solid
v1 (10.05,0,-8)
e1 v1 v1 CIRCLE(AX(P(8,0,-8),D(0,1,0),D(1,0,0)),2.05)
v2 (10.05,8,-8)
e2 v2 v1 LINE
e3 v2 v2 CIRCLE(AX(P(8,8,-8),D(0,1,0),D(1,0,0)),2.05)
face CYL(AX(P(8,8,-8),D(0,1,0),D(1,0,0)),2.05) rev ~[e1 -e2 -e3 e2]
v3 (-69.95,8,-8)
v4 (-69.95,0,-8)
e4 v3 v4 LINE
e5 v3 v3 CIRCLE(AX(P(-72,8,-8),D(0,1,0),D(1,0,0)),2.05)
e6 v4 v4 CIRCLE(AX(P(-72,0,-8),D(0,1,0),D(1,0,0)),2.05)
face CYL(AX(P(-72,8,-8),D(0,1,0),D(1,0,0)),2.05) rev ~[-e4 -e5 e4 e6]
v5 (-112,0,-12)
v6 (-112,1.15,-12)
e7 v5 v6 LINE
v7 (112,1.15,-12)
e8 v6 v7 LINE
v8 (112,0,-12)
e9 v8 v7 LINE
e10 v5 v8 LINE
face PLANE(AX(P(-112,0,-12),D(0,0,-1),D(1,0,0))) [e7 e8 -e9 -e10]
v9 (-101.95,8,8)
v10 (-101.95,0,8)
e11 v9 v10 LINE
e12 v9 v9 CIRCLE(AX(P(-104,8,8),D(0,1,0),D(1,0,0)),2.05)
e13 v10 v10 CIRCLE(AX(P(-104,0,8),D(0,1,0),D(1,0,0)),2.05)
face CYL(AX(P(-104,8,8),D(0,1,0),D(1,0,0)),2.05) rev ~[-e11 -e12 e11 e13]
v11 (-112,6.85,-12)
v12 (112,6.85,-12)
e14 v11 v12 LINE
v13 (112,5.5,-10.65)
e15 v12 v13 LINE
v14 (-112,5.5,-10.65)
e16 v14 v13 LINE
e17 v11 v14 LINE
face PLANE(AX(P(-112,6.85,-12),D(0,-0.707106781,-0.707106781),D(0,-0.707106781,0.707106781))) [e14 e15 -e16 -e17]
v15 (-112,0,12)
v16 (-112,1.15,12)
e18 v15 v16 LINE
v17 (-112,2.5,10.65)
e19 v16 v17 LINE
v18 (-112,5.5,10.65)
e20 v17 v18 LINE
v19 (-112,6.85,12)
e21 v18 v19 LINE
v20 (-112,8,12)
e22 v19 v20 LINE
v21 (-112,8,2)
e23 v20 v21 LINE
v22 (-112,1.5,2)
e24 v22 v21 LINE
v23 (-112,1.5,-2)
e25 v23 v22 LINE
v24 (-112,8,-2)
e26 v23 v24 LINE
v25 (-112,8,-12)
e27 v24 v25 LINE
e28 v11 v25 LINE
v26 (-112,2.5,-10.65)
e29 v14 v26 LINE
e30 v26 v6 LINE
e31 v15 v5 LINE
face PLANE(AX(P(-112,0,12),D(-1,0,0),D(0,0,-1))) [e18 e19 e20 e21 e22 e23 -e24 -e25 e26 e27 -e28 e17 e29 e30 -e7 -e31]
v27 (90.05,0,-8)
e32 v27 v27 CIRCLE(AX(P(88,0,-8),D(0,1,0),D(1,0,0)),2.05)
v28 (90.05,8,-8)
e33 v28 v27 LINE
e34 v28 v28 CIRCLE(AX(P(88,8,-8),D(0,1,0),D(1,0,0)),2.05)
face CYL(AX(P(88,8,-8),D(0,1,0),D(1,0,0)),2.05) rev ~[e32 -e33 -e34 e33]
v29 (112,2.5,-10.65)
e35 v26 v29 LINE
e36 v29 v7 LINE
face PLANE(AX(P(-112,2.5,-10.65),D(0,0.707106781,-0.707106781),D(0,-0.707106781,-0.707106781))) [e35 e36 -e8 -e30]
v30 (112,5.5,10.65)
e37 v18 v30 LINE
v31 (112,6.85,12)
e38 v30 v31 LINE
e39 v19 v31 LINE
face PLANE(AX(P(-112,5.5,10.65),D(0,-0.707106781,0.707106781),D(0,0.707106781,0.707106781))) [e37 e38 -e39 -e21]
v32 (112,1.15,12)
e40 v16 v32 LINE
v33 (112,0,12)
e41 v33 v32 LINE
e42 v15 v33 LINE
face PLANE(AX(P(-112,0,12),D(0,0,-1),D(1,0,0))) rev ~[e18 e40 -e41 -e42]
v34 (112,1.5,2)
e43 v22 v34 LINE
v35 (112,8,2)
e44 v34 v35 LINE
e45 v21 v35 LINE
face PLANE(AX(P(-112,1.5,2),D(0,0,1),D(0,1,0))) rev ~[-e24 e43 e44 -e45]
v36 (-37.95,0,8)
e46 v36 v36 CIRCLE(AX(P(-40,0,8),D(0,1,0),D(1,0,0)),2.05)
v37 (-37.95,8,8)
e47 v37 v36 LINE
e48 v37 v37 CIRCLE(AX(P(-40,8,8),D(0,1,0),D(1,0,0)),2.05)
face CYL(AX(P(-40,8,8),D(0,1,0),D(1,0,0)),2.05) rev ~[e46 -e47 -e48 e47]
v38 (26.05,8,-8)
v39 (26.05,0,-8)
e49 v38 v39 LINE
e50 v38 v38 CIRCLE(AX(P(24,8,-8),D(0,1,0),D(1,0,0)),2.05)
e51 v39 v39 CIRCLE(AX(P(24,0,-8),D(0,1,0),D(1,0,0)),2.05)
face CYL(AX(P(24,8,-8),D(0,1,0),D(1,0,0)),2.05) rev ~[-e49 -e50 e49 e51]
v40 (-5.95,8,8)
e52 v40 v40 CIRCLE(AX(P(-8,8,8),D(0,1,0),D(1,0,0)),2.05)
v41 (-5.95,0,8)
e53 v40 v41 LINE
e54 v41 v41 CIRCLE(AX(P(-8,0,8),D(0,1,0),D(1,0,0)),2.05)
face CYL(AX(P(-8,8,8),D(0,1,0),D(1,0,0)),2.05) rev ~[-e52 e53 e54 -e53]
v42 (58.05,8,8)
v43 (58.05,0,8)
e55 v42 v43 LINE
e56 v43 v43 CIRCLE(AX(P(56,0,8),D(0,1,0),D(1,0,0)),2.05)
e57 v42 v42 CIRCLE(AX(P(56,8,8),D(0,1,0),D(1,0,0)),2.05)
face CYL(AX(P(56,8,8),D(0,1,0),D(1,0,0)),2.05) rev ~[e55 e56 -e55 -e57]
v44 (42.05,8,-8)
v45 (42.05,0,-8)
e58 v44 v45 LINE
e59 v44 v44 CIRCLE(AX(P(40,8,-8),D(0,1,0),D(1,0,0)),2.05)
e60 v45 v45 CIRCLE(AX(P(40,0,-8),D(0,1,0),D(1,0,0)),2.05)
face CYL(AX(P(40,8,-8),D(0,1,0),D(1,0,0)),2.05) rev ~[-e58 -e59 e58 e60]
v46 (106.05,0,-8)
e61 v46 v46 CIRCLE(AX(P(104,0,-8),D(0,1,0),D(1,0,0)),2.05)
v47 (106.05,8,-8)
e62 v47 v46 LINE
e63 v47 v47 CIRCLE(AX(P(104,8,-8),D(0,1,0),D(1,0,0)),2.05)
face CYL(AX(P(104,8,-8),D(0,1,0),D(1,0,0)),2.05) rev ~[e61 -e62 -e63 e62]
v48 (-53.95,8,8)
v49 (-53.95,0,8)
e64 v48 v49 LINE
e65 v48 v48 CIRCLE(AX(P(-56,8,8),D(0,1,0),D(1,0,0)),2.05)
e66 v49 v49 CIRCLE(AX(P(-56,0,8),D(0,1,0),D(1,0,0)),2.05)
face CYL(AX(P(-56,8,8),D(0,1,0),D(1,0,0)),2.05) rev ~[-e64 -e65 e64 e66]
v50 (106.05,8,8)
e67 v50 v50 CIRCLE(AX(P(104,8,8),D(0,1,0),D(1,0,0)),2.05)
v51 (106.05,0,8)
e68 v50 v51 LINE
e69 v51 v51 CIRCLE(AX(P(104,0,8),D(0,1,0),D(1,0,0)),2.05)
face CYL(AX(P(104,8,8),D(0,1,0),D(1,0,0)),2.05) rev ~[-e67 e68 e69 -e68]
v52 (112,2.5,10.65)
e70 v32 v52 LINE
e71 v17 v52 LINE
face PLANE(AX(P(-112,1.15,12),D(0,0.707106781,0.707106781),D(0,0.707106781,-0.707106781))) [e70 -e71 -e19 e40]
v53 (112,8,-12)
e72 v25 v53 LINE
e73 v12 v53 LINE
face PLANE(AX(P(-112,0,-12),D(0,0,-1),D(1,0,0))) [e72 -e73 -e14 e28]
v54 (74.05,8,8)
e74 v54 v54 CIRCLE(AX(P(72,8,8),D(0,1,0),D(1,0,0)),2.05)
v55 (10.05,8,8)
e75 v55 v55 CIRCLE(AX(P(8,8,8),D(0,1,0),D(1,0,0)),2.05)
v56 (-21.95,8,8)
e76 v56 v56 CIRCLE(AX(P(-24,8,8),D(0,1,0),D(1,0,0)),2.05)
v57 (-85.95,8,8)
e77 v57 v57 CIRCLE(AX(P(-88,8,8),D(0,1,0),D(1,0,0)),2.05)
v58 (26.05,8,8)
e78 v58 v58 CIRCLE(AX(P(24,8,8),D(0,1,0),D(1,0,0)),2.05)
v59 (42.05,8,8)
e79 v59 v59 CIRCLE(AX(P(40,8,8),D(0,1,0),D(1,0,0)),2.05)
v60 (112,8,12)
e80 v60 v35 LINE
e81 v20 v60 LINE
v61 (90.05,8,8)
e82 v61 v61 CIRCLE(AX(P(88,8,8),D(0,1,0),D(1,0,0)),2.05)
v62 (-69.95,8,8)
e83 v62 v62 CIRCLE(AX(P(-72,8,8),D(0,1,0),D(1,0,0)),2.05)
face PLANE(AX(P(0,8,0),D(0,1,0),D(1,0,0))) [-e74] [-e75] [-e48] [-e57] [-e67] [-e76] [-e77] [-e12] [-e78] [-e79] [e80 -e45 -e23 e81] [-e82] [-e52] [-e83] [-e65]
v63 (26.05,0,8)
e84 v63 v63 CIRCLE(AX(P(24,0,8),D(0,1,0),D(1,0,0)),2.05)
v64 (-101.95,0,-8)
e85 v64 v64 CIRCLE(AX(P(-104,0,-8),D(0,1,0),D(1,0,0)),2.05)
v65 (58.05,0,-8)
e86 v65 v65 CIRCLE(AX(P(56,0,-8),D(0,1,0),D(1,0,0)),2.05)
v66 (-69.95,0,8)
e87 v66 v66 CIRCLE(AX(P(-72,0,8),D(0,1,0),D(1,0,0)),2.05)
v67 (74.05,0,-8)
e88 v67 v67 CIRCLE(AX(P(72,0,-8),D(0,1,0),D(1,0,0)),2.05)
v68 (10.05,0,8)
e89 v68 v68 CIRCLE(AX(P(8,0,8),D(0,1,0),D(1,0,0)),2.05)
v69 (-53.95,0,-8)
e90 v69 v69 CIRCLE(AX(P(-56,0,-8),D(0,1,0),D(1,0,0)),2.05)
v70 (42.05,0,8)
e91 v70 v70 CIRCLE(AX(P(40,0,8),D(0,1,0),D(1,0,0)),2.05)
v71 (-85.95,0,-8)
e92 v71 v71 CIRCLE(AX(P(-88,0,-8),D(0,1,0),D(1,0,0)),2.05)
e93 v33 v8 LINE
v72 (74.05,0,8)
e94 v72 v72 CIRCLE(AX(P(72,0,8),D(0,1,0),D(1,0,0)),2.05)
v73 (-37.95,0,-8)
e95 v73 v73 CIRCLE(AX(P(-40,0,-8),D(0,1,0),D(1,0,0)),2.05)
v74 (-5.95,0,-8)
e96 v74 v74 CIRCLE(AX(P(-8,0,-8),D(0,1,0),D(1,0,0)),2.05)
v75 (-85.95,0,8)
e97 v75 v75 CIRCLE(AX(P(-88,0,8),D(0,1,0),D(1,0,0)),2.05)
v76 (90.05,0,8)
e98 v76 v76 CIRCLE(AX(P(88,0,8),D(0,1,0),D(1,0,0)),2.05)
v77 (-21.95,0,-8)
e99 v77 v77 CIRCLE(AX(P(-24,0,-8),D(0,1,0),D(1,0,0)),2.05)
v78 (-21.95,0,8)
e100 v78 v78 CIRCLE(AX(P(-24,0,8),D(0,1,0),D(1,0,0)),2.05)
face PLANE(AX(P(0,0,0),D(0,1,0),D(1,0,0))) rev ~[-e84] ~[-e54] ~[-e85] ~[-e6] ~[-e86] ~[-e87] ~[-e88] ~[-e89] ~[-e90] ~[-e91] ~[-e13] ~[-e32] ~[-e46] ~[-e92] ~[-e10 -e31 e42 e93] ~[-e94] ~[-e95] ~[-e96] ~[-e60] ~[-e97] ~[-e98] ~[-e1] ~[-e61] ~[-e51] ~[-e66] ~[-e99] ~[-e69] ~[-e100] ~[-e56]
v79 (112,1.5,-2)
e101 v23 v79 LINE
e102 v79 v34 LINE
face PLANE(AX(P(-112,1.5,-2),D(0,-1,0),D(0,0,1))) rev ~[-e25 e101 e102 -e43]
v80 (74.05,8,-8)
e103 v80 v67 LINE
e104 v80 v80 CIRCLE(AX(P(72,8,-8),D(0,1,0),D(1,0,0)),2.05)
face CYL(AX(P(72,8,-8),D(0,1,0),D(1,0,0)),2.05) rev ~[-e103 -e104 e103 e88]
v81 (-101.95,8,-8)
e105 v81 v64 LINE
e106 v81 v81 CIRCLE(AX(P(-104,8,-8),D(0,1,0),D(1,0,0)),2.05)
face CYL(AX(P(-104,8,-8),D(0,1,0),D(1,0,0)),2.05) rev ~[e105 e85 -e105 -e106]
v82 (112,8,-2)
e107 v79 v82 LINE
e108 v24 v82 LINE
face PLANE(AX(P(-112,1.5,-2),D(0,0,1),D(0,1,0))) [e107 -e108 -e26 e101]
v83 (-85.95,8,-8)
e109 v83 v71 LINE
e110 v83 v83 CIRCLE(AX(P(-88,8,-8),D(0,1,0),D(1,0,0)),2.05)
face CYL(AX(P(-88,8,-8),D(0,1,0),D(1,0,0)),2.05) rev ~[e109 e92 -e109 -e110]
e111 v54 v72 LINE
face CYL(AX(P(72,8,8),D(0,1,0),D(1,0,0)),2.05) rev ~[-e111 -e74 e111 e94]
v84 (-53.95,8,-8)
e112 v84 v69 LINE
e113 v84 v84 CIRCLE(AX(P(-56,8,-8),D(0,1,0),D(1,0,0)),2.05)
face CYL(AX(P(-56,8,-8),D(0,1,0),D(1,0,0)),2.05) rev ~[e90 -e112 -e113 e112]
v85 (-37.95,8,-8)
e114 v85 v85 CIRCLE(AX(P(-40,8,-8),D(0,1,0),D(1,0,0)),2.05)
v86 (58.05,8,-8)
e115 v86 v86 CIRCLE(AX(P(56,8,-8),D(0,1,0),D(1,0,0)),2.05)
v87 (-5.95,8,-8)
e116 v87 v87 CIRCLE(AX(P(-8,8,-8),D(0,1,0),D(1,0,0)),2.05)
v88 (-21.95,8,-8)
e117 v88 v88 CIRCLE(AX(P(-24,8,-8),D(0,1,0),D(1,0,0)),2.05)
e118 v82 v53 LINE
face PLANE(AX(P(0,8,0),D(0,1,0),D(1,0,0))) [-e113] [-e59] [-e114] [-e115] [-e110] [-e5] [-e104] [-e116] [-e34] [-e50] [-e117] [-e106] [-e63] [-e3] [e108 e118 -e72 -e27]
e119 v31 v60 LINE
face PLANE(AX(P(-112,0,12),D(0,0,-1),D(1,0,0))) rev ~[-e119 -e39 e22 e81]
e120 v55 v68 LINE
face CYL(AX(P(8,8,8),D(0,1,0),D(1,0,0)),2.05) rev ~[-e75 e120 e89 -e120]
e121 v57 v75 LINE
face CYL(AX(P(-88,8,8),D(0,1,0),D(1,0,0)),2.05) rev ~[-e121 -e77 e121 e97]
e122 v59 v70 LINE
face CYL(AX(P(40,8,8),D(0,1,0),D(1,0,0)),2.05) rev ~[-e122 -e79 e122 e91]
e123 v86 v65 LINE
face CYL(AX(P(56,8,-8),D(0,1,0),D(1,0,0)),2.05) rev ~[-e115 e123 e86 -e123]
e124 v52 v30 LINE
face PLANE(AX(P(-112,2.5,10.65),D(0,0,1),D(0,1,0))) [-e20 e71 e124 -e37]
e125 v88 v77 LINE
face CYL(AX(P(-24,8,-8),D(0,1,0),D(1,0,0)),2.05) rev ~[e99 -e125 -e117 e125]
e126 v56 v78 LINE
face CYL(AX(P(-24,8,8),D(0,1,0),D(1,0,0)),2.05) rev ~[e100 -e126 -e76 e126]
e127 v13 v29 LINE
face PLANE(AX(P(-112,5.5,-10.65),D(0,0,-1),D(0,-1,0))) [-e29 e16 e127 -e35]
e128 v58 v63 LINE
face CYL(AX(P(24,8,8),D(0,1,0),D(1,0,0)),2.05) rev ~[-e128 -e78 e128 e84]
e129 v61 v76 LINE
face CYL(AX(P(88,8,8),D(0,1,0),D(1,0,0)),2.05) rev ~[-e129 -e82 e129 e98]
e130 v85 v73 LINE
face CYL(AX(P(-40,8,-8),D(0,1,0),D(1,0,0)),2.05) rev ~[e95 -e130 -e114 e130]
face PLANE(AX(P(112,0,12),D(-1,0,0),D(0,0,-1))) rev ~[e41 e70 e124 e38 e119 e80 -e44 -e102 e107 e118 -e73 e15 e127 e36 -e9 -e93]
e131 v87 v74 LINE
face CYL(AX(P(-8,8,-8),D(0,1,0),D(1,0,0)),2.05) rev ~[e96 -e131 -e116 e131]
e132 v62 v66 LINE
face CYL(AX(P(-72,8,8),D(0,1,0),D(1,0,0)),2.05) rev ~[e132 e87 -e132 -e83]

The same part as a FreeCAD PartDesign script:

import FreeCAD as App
import Part
import Sketcher

V = App.Vector
Q = App.Units.Quantity

doc = App.newDocument("Part")
params = doc.addObject("Spreadsheet::Sheet", "Params")
for row, (alias, value) in enumerate([
    ("sketch1_width", "224 mm"),
    ("sketch1_height", "24 mm"),
    ("pad1_length", "8 mm"),
    ("sketch2_diameter", "4.1 mm"),
    ("sketch3_width", "3 mm"),
    ("sketch3_height", "4 mm"),
    ("sketch3_width2", "6.5 mm"),
    ("sketch3_width3", "5.7 mm"),
], start=1):
    params.set(f"A{row}", alias)
    params.set(f"B{row}", "=" + value)
    params.setAlias(f"B{row}", alias)

body = doc.addObject("PartDesign::Body", "Body")

sketch1 = body.newObject("Sketcher::SketchObject", "Sketch")
sketch1.AttachmentSupport = (doc.getObject("XZ_Plane"), [""])
sketch1.MapMode = "FlatFace"
sketch1.addGeometry([
    Part.LineSegment(V(-112, -12, 0), V(-112, 12, 0)),
    Part.LineSegment(V(-112, 12, 0), V(112, 12, 0)),
    Part.LineSegment(V(112, 12, 0), V(112, -12, 0)),
    Part.LineSegment(V(112, -12, 0), V(-112, -12, 0)),
], False)
sketch1.addConstraint([
    Sketcher.Constraint("Coincident", 0, 2, 1, 1),
    Sketcher.Constraint("Coincident", 1, 2, 2, 1),
    Sketcher.Constraint("Coincident", 2, 2, 3, 1),
    Sketcher.Constraint("Coincident", 3, 2, 0, 1),
    Sketcher.Constraint("Vertical", 0),
    Sketcher.Constraint("Horizontal", 1),
    Sketcher.Constraint("Vertical", 2),
    Sketcher.Constraint("Horizontal", 3),
    Sketcher.Constraint("Symmetric", 0, 2, 2, 2, -1, 1),
    Sketcher.Constraint("DistanceX", 1, 1, 1, 2, Q("224 mm")),
    Sketcher.Constraint("DistanceY", 0, 1, 0, 2, Q("24 mm")),
])
sketch1.setExpression("Constraints[9]", "Params.sketch1_width")
sketch1.setExpression("Constraints[10]", "Params.sketch1_height")
pad1 = body.newObject("PartDesign::Pad", "Pad")
pad1.Profile = sketch1
pad1.setExpression("Length", "Params.pad1_length")
pad1.Reversed = True

sketch2 = body.newObject("Sketcher::SketchObject", "Sketch001")
sketch2.AttachmentSupport = (doc.getObject("XZ_Plane"), [""])
sketch2.MapMode = "FlatFace"
sketch2.AttachmentOffset = App.Placement(V(0, 0, -8), App.Rotation())
sketch2.addGeometry([
    Part.Circle(V(-104, -8, 0), V(0, 0, 1), 2.05),
    Part.Circle(V(-88, -8, 0), V(0, 0, 1), 2.05),
    Part.Circle(V(-72, -8, 0), V(0, 0, 1), 2.05),
    Part.Circle(V(-56, -8, 0), V(0, 0, 1), 2.05),
    Part.Circle(V(-40, -8, 0), V(0, 0, 1), 2.05),
    Part.Circle(V(-24, -8, 0), V(0, 0, 1), 2.05),
    Part.Circle(V(-8, -8, 0), V(0, 0, 1), 2.05),
    Part.Circle(V(8, -8, 0), V(0, 0, 1), 2.05),
    Part.Circle(V(24, -8, 0), V(0, 0, 1), 2.05),
    Part.Circle(V(40, -8, 0), V(0, 0, 1), 2.05),
    Part.Circle(V(56, -8, 0), V(0, 0, 1), 2.05),
    Part.Circle(V(72, -8, 0), V(0, 0, 1), 2.05),
    Part.Circle(V(88, -8, 0), V(0, 0, 1), 2.05),
    Part.Circle(V(104, -8, 0), V(0, 0, 1), 2.05),
    Part.Circle(V(-88, 8, 0), V(0, 0, 1), 2.05),
    Part.Circle(V(-72, 8, 0), V(0, 0, 1), 2.05),
    Part.Circle(V(-56, 8, 0), V(0, 0, 1), 2.05),
    Part.Circle(V(-40, 8, 0), V(0, 0, 1), 2.05),
    Part.Circle(V(-24, 8, 0), V(0, 0, 1), 2.05),
    Part.Circle(V(-8, 8, 0), V(0, 0, 1), 2.05),
    Part.Circle(V(8, 8, 0), V(0, 0, 1), 2.05),
    Part.Circle(V(24, 8, 0), V(0, 0, 1), 2.05),
    Part.Circle(V(40, 8, 0), V(0, 0, 1), 2.05),
    Part.Circle(V(56, 8, 0), V(0, 0, 1), 2.05),
    Part.Circle(V(72, 8, 0), V(0, 0, 1), 2.05),
    Part.Circle(V(88, 8, 0), V(0, 0, 1), 2.05),
    Part.Circle(V(104, 8, 0), V(0, 0, 1), 2.05),
    Part.Circle(V(-104, 8, 0), V(0, 0, 1), 2.05),
], False)
sketch2.addConstraint([
    Sketcher.Constraint("Equal", 0, 1),
    Sketcher.Constraint("Equal", 1, 2),
    Sketcher.Constraint("Equal", 2, 3),
    Sketcher.Constraint("Equal", 3, 4),
    Sketcher.Constraint("Equal", 4, 5),
    Sketcher.Constraint("Equal", 5, 6),
    Sketcher.Constraint("Equal", 6, 7),
    Sketcher.Constraint("Equal", 7, 8),
    Sketcher.Constraint("Equal", 8, 9),
    Sketcher.Constraint("Equal", 9, 10),
    Sketcher.Constraint("Equal", 10, 11),
    Sketcher.Constraint("Equal", 11, 12),
    Sketcher.Constraint("Equal", 12, 13),
    Sketcher.Constraint("Equal", 13, 14),
    Sketcher.Constraint("Equal", 14, 15),
    Sketcher.Constraint("Equal", 15, 16),
    Sketcher.Constraint("Equal", 16, 17),
    Sketcher.Constraint("Equal", 17, 18),
    Sketcher.Constraint("Equal", 18, 19),
    Sketcher.Constraint("Equal", 19, 20),
    Sketcher.Constraint("Equal", 20, 21),
    Sketcher.Constraint("Equal", 21, 22),
    Sketcher.Constraint("Equal", 22, 23),
    Sketcher.Constraint("Equal", 23, 24),
    Sketcher.Constraint("Equal", 24, 25),
    Sketcher.Constraint("Equal", 25, 26),
    Sketcher.Constraint("Equal", 26, 27),
    Sketcher.Constraint("Symmetric", 12, 3, 14, 3, -1, 1),
    Sketcher.Constraint("Symmetric", 11, 3, 15, 3, -1, 1),
    Sketcher.Constraint("Symmetric", 10, 3, 16, 3, -1, 1),
    Sketcher.Constraint("Symmetric", 9, 3, 17, 3, -1, 1),
    Sketcher.Constraint("Symmetric", 8, 3, 18, 3, -1, 1),
    Sketcher.Constraint("Symmetric", 7, 3, 19, 3, -1, 1),
    Sketcher.Constraint("Symmetric", 6, 3, 20, 3, -1, 1),
    Sketcher.Constraint("Symmetric", 5, 3, 21, 3, -1, 1),
    Sketcher.Constraint("Symmetric", 4, 3, 22, 3, -1, 1),
    Sketcher.Constraint("Symmetric", 3, 3, 23, 3, -1, 1),
    Sketcher.Constraint("Symmetric", 2, 3, 24, 3, -1, 1),
    Sketcher.Constraint("Symmetric", 1, 3, 25, 3, -1, 1),
    Sketcher.Constraint("Symmetric", 0, 3, 26, 3, -1, 1),
    Sketcher.Constraint("Symmetric", 13, 3, 27, 3, -1, 1),
    Sketcher.Constraint("Symmetric", 6, 3, 7, 3, -2),
    Sketcher.Constraint("Symmetric", 5, 3, 8, 3, -2),
    Sketcher.Constraint("Symmetric", 4, 3, 9, 3, -2),
    Sketcher.Constraint("Symmetric", 3, 3, 10, 3, -2),
    Sketcher.Constraint("Symmetric", 2, 3, 11, 3, -2),
    Sketcher.Constraint("Symmetric", 1, 3, 12, 3, -2),
    Sketcher.Constraint("Symmetric", 0, 3, 13, 3, -2),
    Sketcher.Constraint("Horizontal", 0, 3, 1, 3),
    Sketcher.Constraint("Horizontal", 1, 3, 2, 3),
    Sketcher.Constraint("Horizontal", 2, 3, 3, 3),
    Sketcher.Constraint("Horizontal", 3, 3, 4, 3),
    Sketcher.Constraint("Horizontal", 4, 3, 5, 3),
    Sketcher.Constraint("Horizontal", 5, 3, 6, 3),
    Sketcher.Constraint("Diameter", 0, Q("4.1 mm")),
    Sketcher.Constraint("DistanceX", 0, 3, -1, 1, Q("104 mm")),
    Sketcher.Constraint("DistanceY", 0, 3, -1, 1, Q("8 mm")),
    Sketcher.Constraint("DistanceX", 1, 3, -1, 1, Q("88 mm")),
    Sketcher.Constraint("DistanceX", 2, 3, -1, 1, Q("72 mm")),
    Sketcher.Constraint("DistanceX", 3, 3, -1, 1, Q("56 mm")),
    Sketcher.Constraint("DistanceX", 4, 3, -1, 1, Q("40 mm")),
    Sketcher.Constraint("DistanceX", 5, 3, -1, 1, Q("24 mm")),
    Sketcher.Constraint("DistanceX", 6, 3, -1, 1, Q("8 mm")),
])
sketch2.setExpression("Constraints[54]", "Params.sketch2_diameter")
pocket1 = body.newObject("PartDesign::Pocket", "Pocket")
pocket1.Profile = sketch2
pocket1.Type = "ThroughAll"
pocket1.Reversed = True

sketch3 = body.newObject("Sketcher::SketchObject", "Sketch002")
sketch3.AttachmentSupport = (doc.getObject("YZ_Plane"), [""])
sketch3.MapMode = "FlatFace"
sketch3.AttachmentOffset = App.Placement(V(0, 0, -112), App.Rotation())
sketch3.addGeometry([
    Part.LineSegment(V(8, -2, 0), V(1.5, -2, 0)),
    Part.LineSegment(V(1.5, -2, 0), V(1.5, 2, 0)),
    Part.LineSegment(V(1.5, 2, 0), V(8, 2, 0)),
    Part.LineSegment(V(8, 2, 0), V(8, -2, 0)),
    Part.LineSegment(V(5.5, -10.65, 0), V(6.85, -12, 0)),
    Part.LineSegment(V(6.85, -12, 0), V(1.15, -12, 0)),
    Part.LineSegment(V(1.15, -12, 0), V(2.5, -10.65, 0)),
    Part.LineSegment(V(2.5, -10.65, 0), V(5.5, -10.65, 0)),
    Part.LineSegment(V(1.15, 12, 0), V(6.85, 12, 0)),
    Part.LineSegment(V(6.85, 12, 0), V(5.5, 10.65, 0)),
    Part.LineSegment(V(5.5, 10.65, 0), V(2.5, 10.65, 0)),
    Part.LineSegment(V(2.5, 10.65, 0), V(1.15, 12, 0)),
], False)
sketch3.addConstraint([
    Sketcher.Constraint("Coincident", 0, 2, 1, 1),
    Sketcher.Constraint("Coincident", 1, 2, 2, 1),
    Sketcher.Constraint("Coincident", 2, 2, 3, 1),
    Sketcher.Constraint("Coincident", 3, 2, 0, 1),
    Sketcher.Constraint("Coincident", 4, 2, 5, 1),
    Sketcher.Constraint("Coincident", 5, 2, 6, 1),
    Sketcher.Constraint("Coincident", 6, 2, 7, 1),
    Sketcher.Constraint("Coincident", 7, 2, 4, 1),
    Sketcher.Constraint("Coincident", 8, 2, 9, 1),
    Sketcher.Constraint("Coincident", 9, 2, 10, 1),
    Sketcher.Constraint("Coincident", 10, 2, 11, 1),
    Sketcher.Constraint("Coincident", 11, 2, 8, 1),
    Sketcher.Constraint("Horizontal", 0),
    Sketcher.Constraint("Vertical", 1),
    Sketcher.Constraint("Horizontal", 2),
    Sketcher.Constraint("Vertical", 3),
    Sketcher.Constraint("Horizontal", 5),
    Sketcher.Constraint("Horizontal", 7),
    Sketcher.Constraint("Horizontal", 8),
    Sketcher.Constraint("Horizontal", 10),
    Sketcher.Constraint("Symmetric", 4, 2, 8, 2, -1),
    Sketcher.Constraint("Symmetric", 7, 2, 9, 2, -1),
    Sketcher.Constraint("Perpendicular", 4, 6),
    Sketcher.Constraint("Parallel", 6, 9),
    Sketcher.Constraint("Perpendicular", 9, 11),
    Sketcher.Constraint("Vertical", 6, 2, 10, 2),
    Sketcher.Constraint("DistanceX", 7, 1, 7, 2, Q("3 mm")),
    Sketcher.Constraint("DistanceY", 1, 1, 1, 2, Q("4 mm")),
    Sketcher.Constraint("DistanceX", 0, 2, 0, 1, Q("6.5 mm")),
    Sketcher.Constraint("DistanceX", 5, 2, 5, 1, Q("5.7 mm")),
    Sketcher.Constraint("DistanceY", 0, 2, -1, 1, Q("2 mm")),
    Sketcher.Constraint("DistanceX", -1, 1, 2, 2, Q("8 mm")),
    Sketcher.Constraint("DistanceY", 4, 2, -1, 1, Q("12 mm")),
    Sketcher.Constraint("DistanceX", 0, 2, 6, 2, Q("1 mm")),
])
sketch3.setExpression("Constraints[26]", "Params.sketch3_width")
sketch3.setExpression("Constraints[27]", "Params.sketch3_height")
sketch3.setExpression("Constraints[28]", "Params.sketch3_width2")
sketch3.setExpression("Constraints[29]", "Params.sketch3_width3")
pocket2 = body.newObject("PartDesign::Pocket", "Pocket001")
pocket2.Profile = sketch3
pocket2.Type = "ThroughAll"
pocket2.Reversed = True

doc.recompute()
